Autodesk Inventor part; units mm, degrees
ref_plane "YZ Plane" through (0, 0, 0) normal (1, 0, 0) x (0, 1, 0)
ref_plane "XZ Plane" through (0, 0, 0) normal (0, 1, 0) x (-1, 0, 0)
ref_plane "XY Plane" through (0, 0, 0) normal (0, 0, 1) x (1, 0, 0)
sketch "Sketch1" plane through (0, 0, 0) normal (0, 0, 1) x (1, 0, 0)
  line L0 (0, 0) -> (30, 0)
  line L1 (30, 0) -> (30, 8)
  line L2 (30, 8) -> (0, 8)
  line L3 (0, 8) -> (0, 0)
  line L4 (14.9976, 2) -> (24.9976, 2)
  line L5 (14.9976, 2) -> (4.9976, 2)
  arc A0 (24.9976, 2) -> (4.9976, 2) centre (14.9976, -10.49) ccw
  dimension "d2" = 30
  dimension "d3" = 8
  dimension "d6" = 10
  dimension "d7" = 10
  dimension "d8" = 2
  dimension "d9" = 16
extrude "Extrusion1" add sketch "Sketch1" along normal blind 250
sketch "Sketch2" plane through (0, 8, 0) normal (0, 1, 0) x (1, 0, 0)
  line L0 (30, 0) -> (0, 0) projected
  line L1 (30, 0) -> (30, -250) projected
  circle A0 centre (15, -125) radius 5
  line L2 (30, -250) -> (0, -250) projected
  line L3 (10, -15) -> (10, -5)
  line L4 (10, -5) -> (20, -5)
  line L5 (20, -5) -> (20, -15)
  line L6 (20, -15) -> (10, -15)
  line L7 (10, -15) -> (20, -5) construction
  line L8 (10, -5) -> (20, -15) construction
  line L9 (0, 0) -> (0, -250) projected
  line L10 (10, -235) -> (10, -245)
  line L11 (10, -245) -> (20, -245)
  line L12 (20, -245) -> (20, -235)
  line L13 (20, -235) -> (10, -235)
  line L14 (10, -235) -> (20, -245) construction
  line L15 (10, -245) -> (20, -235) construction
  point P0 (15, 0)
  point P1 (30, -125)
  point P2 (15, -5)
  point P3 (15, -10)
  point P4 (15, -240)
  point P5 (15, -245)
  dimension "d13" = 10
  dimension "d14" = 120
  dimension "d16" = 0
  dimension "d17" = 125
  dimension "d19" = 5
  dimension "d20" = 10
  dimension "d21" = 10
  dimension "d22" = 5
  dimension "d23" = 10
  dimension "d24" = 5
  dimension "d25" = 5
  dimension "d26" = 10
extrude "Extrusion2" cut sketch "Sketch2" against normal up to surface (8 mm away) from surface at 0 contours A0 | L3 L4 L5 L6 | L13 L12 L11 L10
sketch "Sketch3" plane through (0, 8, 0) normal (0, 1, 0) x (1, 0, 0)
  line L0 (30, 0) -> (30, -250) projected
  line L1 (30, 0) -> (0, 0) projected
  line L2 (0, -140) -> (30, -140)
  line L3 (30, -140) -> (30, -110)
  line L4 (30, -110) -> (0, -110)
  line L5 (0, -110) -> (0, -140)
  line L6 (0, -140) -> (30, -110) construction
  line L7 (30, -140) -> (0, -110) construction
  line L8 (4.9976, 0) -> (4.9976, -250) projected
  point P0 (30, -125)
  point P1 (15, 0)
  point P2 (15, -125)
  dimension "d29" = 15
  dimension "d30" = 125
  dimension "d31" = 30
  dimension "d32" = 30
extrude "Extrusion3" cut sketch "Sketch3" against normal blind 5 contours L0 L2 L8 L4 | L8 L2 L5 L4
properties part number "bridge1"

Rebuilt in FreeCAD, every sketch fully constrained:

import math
import FreeCAD as App
import Part
import Sketcher

doc = App.newDocument("Part")
body = doc.addObject("PartDesign::Body", "Body")

# Sketch on XY plane
sketch1 = doc.addObject("Sketcher::SketchObject", "Sketch")
body.addObject(sketch1)
sketch1.AttachmentSupport = (doc.XY_Plane, [""])
sketch1.MapMode = "FlatFace"
sketch1.addGeometry([
    Part.LineSegment(App.Vector(0, 8, 0), App.Vector(0, 0, 0)),  # 0
    Part.LineSegment(App.Vector(0, 0, 0), App.Vector(30, 0, 0)),  # 1
    Part.LineSegment(App.Vector(30, 0, 0), App.Vector(30, 8, 0)),  # 2
    Part.LineSegment(App.Vector(30, 8, 0), App.Vector(0, 8, 0)),  # 3
    Part.LineSegment(App.Vector(25, 2, 0), App.Vector(5, 2, 0)),  # 4
    Part.ArcOfCircle(Part.Circle(App.Vector(15, -10, 0), App.Vector(0, 0, 1), 16), math.radians(51), math.radians(129)),  # 5
], False)
sketch1.addConstraint([
    Sketcher.Constraint("Coincident", 0, 2, 1, 1),
    Sketcher.Constraint("Coincident", 1, 2, 2, 1),
    Sketcher.Constraint("Coincident", 2, 2, 3, 1),
    Sketcher.Constraint("Coincident", 3, 2, 0, 1),
    Sketcher.Constraint("Coincident", 4, 1, 5, 1),
    Sketcher.Constraint("Coincident", 5, 2, 4, 2),
    Sketcher.Constraint("Vertical", 0),
    Sketcher.Constraint("Horizontal", 1),
    Sketcher.Constraint("Vertical", 2),
    Sketcher.Constraint("Horizontal", 3),
    Sketcher.Constraint("Horizontal", 4),
    Sketcher.Constraint("Coincident", 0, 2, -1, 1),
    Sketcher.Constraint("Radius", 5, 16.0),
    Sketcher.Constraint("DistanceX", 1, 1, 1, 2, 30.0),
    Sketcher.Constraint("DistanceY", 0, 2, 0, 1, 8.0),
    Sketcher.Constraint("DistanceY", -1, 1, 4, 1, 2.0),
    Sketcher.Constraint("DistanceX", 5, 3, 4, 1, 10.0),
    Sketcher.Constraint("DistanceX", -1, 1, 5, 3, 14.9976),
])
pad1 = doc.addObject("PartDesign::Pad", "Pad")
body.addObject(pad1)
pad1.Profile = sketch1
pad1.Length = 250

# Sketch on XZ plane
sketch2 = doc.addObject("Sketcher::SketchObject", "Sketch001")
body.addObject(sketch2)
sketch2.AttachmentSupport = (doc.XZ_Plane, [""])
sketch2.MapMode = "FlatFace"
sketch2.AttachmentOffset = App.Placement(App.Vector(0, 0, -8), App.Rotation())
sketch2.addGeometry([
    Part.Circle(App.Vector(15, 125, 0), App.Vector(0, 0, 1), 5),  # 0
    Part.LineSegment(App.Vector(10, 5, 0), App.Vector(10, 15, 0)),  # 1
    Part.LineSegment(App.Vector(10, 15, 0), App.Vector(20, 15, 0)),  # 2
    Part.LineSegment(App.Vector(20, 15, 0), App.Vector(20, 5, 0)),  # 3
    Part.LineSegment(App.Vector(20, 5, 0), App.Vector(10, 5, 0)),  # 4
    Part.LineSegment(App.Vector(20, 235, 0), App.Vector(10, 235, 0)),  # 5
    Part.LineSegment(App.Vector(10, 235, 0), App.Vector(10, 245, 0)),  # 6
    Part.LineSegment(App.Vector(10, 245, 0), App.Vector(20, 245, 0)),  # 7
    Part.LineSegment(App.Vector(20, 245, 0), App.Vector(20, 235, 0)),  # 8
], False)
sketch2.addConstraint([
    Sketcher.Constraint("Coincident", 1, 2, 2, 1),
    Sketcher.Constraint("Coincident", 2, 2, 3, 1),
    Sketcher.Constraint("Coincident", 3, 2, 4, 1),
    Sketcher.Constraint("Coincident", 4, 2, 1, 1),
    Sketcher.Constraint("Coincident", 5, 2, 6, 1),
    Sketcher.Constraint("Coincident", 6, 2, 7, 1),
    Sketcher.Constraint("Coincident", 7, 2, 8, 1),
    Sketcher.Constraint("Coincident", 8, 2, 5, 1),
    Sketcher.Constraint("Vertical", 1),
    Sketcher.Constraint("Horizontal", 2),
    Sketcher.Constraint("Vertical", 3),
    Sketcher.Constraint("Horizontal", 4),
    Sketcher.Constraint("Horizontal", 5),
    Sketcher.Constraint("Vertical", 6),
    Sketcher.Constraint("Horizontal", 7),
    Sketcher.Constraint("Vertical", 8),
    Sketcher.Constraint("Vertical", 4, 2, 5, 2),
    Sketcher.Constraint("Vertical", 3, 2, 7, 2),
    Sketcher.Constraint("Equal", 7, 1),
    Sketcher.Constraint("Equal", 3, 6),
    Sketcher.Constraint("Diameter", 0, 10.0),
    Sketcher.Constraint("DistanceX", 2, 1, 2, 2, 10.0),
    Sketcher.Constraint("DistanceY", -1, 1, 0, 3, 125.0),
    Sketcher.Constraint("DistanceX", -1, 1, 1, 2, 10.0),
    Sketcher.Constraint("DistanceY", -1, 1, 3, 2, 5.0),
    Sketcher.Constraint("DistanceX", 1, 2, 0, 3, 5.0),
    Sketcher.Constraint("DistanceY", 0, 3, 6, 2, 120.0),
])
pocket1 = doc.addObject("PartDesign::Pocket", "Pocket")
body.addObject(pocket1)
pocket1.Profile = sketch2
pocket1.Length = 8
pocket1.Reversed = True

# Sketch on XZ plane
sketch3 = doc.addObject("Sketcher::SketchObject", "Sketch002")
body.addObject(sketch3)
sketch3.AttachmentSupport = (doc.XZ_Plane, [""])
sketch3.MapMode = "FlatFace"
sketch3.AttachmentOffset = App.Placement(App.Vector(0, 0, -8), App.Rotation())
sketch3.addGeometry([
    Part.LineSegment(App.Vector(30, 140, 0), App.Vector(30, 110, 0)),
    Part.LineSegment(App.Vector(30, 110, 0), App.Vector(0, 110, 0)),
    Part.LineSegment(App.Vector(0, 110, 0), App.Vector(0, 140, 0)),
    Part.LineSegment(App.Vector(0, 140, 0), App.Vector(30, 140, 0)),
], False)
sketch3.addConstraint([
    Sketcher.Constraint("Coincident", 0, 2, 1, 1),
    Sketcher.Constraint("Coincident", 1, 2, 2, 1),
    Sketcher.Constraint("Coincident", 2, 2, 3, 1),
    Sketcher.Constraint("Coincident", 3, 2, 0, 1),
    Sketcher.Constraint("Vertical", 0),
    Sketcher.Constraint("Horizontal", 1),
    Sketcher.Constraint("Vertical", 2),
    Sketcher.Constraint("Horizontal", 3),
    Sketcher.Constraint("PointOnObject", 1, 2, -2),
    Sketcher.Constraint("Equal", 3, 0),
    Sketcher.Constraint("DistanceX", 1, 2, 1, 1, 30.0),
    Sketcher.Constraint("DistanceY", -1, 1, 0, 2, 110.0),
])
pocket2 = doc.addObject("PartDesign::Pocket", "Pocket001")
body.addObject(pocket2)
pocket2.Profile = sketch3
pocket2.Length = 5
pocket2.Reversed = True

doc.recompute()
